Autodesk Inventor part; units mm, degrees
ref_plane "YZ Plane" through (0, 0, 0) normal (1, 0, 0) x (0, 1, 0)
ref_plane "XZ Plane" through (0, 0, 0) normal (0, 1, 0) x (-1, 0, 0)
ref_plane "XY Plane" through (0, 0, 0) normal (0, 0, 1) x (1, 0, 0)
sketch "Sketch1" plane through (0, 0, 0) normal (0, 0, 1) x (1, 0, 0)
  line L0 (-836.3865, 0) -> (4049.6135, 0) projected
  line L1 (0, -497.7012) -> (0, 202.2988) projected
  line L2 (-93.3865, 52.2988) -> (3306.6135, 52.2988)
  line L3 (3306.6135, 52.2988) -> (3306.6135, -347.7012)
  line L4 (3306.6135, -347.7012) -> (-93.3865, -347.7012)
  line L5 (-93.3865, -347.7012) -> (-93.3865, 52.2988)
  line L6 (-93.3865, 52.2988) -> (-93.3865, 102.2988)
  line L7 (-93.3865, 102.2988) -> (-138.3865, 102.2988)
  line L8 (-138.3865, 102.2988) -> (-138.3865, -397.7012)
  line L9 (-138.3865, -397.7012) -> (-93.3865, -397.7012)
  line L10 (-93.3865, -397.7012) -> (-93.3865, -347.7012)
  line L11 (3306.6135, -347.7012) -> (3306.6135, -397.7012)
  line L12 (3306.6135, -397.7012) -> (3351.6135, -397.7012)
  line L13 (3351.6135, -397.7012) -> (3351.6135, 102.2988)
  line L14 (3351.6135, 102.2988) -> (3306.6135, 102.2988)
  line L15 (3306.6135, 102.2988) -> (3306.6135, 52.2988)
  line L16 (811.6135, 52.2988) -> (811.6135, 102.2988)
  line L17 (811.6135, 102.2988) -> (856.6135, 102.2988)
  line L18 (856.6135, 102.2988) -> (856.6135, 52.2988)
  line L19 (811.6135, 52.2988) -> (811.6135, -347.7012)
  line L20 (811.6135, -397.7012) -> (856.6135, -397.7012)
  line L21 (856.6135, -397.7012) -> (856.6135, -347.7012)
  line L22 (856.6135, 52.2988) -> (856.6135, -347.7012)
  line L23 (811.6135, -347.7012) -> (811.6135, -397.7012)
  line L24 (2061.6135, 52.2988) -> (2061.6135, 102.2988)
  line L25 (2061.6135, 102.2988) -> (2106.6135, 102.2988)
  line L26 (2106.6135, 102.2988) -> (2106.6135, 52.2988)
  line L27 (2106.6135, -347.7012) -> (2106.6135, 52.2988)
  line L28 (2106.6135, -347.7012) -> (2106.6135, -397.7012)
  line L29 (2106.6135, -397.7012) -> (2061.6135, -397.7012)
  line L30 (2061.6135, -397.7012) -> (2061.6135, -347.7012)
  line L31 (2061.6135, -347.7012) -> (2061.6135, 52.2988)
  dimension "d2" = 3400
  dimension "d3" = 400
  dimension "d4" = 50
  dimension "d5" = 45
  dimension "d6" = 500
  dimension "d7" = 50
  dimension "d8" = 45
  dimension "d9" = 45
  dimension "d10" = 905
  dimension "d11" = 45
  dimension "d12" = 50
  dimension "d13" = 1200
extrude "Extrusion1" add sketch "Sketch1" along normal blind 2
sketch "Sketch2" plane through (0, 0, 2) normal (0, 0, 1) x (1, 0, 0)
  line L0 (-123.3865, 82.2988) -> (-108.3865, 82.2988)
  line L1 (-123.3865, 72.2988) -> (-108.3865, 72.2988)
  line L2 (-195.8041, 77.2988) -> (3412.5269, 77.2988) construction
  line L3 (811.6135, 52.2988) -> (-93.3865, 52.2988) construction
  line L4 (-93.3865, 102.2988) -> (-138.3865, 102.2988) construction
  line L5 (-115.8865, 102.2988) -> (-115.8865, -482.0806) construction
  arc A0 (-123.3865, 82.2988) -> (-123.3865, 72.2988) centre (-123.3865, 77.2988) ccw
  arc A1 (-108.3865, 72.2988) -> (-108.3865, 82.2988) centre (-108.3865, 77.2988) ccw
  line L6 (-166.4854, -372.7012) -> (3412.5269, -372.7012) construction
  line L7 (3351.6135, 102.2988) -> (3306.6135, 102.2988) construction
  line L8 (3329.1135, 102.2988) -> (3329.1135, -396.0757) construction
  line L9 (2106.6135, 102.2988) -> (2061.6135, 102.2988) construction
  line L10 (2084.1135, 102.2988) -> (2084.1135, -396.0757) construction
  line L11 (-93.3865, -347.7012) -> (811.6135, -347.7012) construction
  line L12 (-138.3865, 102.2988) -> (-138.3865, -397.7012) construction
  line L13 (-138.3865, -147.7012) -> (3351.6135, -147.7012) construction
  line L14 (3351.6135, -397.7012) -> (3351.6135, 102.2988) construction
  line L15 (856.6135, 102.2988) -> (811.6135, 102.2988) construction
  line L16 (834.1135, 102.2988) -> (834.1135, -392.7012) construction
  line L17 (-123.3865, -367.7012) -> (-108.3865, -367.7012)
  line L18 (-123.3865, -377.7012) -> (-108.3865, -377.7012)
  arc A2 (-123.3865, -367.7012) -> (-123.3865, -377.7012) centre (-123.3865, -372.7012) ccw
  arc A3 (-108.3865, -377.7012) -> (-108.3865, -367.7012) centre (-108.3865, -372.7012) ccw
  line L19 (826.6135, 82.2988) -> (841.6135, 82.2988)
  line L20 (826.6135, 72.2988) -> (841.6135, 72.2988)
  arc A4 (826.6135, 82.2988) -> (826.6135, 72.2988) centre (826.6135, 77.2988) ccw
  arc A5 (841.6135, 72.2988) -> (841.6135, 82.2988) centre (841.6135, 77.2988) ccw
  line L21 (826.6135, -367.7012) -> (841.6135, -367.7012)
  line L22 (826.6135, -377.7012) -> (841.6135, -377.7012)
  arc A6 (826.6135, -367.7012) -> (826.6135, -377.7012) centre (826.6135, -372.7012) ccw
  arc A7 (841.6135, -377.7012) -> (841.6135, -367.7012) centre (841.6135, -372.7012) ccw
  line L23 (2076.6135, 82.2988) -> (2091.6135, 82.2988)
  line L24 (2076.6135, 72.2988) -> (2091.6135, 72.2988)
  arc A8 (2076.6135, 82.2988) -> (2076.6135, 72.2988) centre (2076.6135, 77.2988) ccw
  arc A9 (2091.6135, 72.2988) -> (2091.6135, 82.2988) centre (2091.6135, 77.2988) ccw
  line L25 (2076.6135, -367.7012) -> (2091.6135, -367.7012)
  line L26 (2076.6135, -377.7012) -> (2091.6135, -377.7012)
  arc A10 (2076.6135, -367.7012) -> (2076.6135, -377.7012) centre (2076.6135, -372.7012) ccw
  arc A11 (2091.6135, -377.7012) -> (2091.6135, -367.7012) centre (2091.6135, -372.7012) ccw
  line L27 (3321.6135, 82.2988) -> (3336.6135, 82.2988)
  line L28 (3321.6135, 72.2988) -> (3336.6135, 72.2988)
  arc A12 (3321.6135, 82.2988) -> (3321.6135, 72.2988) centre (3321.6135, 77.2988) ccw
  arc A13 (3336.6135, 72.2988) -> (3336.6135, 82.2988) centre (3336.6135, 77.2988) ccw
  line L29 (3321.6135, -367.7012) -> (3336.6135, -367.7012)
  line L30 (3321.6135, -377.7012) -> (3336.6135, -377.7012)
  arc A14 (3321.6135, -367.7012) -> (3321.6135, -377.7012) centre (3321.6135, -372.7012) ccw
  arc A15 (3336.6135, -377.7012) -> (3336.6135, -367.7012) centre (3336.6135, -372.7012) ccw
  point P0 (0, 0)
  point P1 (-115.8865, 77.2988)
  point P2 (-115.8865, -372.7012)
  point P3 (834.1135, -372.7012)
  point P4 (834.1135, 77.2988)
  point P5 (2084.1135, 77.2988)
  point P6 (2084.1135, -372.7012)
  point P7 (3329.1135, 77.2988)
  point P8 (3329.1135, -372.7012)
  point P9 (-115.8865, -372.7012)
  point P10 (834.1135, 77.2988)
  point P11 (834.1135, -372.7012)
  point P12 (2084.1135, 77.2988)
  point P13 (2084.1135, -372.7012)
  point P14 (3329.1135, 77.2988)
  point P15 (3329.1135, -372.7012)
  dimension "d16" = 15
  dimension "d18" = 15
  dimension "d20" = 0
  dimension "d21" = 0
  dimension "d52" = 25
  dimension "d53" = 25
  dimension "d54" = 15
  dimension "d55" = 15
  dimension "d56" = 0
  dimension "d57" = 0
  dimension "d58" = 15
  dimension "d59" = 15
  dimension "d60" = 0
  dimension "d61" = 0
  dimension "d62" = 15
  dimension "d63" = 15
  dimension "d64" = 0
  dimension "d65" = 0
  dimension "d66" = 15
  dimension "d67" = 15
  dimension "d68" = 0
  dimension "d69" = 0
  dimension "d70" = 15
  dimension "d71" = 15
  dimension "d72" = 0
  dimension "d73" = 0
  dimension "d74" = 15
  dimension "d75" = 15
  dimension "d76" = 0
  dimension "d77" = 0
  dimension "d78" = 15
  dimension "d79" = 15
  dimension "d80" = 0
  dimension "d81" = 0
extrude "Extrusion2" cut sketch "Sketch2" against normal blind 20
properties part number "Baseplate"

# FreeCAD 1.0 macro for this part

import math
import FreeCAD as App
import Part
import Sketcher

V = App.Vector
Q = App.Units.Quantity


def add_polygon(sketch, points):
    """Adds a closed chain of lines whose ends are joined by coincident constraints."""
    first, n = sketch.GeometryCount, len(points)
    for a, b in zip(points, points[1:] + points[:1]):
        sketch.addGeometry(Part.LineSegment(App.Vector(*a, 0), App.Vector(*b, 0)), False)
    for i in range(n):
        sketch.addConstraint(Sketcher.Constraint("Coincident", first + i, 2, first + (i + 1) % n, 1))

doc = App.newDocument("Part")
body = doc.addObject("PartDesign::Body", "Body")

sketch1 = body.newObject("Sketcher::SketchObject", "Sketch")
sketch1.AttachmentSupport = (doc.getObject("XY_Plane"), [""])
sketch1.MapMode = "FlatFace"
add_polygon(sketch1, [(-138.3865, 102.2988), (-138.3865, -397.7012), (-93.3865, -397.7012), (-93.3865, -347.7012), (811.6135, -347.7012), (811.6135, -397.7012), (856.6135, -397.7012), (856.6135, -347.7012), (2061.6135, -347.7012), (2061.6135, -397.7012), (2106.6135, -397.7012), (2106.6135, -347.7012), (3306.6135, -347.7012), (3306.6135, -397.7012), (3351.6135, -397.7012), (3351.6135, 102.2988), (3306.6135, 102.2988), (3306.6135, 52.2988), (2106.6135, 52.2988), (2106.6135, 102.2988), (2061.6135, 102.2988), (2061.6135, 52.2988), (856.6135, 52.2988), (856.6135, 102.2988), (811.6135, 102.2988), (811.6135, 52.2988), (-93.3865, 52.2988), (-93.3865, 102.2988)])
sketch1.addConstraint(Sketcher.Constraint("Vertical", 0))
sketch1.addConstraint(Sketcher.Constraint("Horizontal", 1))
sketch1.addConstraint(Sketcher.Constraint("Vertical", 2))
sketch1.addConstraint(Sketcher.Constraint("Horizontal", 3))
sketch1.addConstraint(Sketcher.Constraint("Vertical", 4))
sketch1.addConstraint(Sketcher.Constraint("Horizontal", 5))
sketch1.addConstraint(Sketcher.Constraint("Vertical", 6))
sketch1.addConstraint(Sketcher.Constraint("Horizontal", 7))
sketch1.addConstraint(Sketcher.Constraint("Vertical", 8))
sketch1.addConstraint(Sketcher.Constraint("Horizontal", 9))
sketch1.addConstraint(Sketcher.Constraint("Vertical", 10))
sketch1.addConstraint(Sketcher.Constraint("Horizontal", 11))
sketch1.addConstraint(Sketcher.Constraint("Vertical", 12))
sketch1.addConstraint(Sketcher.Constraint("Horizontal", 13))
sketch1.addConstraint(Sketcher.Constraint("Vertical", 14))
sketch1.addConstraint(Sketcher.Constraint("Horizontal", 15))
sketch1.addConstraint(Sketcher.Constraint("Vertical", 16))
sketch1.addConstraint(Sketcher.Constraint("Horizontal", 17))
sketch1.addConstraint(Sketcher.Constraint("Vertical", 18))
sketch1.addConstraint(Sketcher.Constraint("Horizontal", 19))
sketch1.addConstraint(Sketcher.Constraint("Vertical", 20))
sketch1.addConstraint(Sketcher.Constraint("Horizontal", 21))
sketch1.addConstraint(Sketcher.Constraint("Vertical", 22))
sketch1.addConstraint(Sketcher.Constraint("Horizontal", 23))
sketch1.addConstraint(Sketcher.Constraint("Vertical", 24))
sketch1.addConstraint(Sketcher.Constraint("Horizontal", 25))
sketch1.addConstraint(Sketcher.Constraint("Vertical", 26))
sketch1.addConstraint(Sketcher.Constraint("Horizontal", 27))
sketch1.addConstraint(Sketcher.Constraint("Horizontal", 1, 2, 4, 2))
sketch1.addConstraint(Sketcher.Constraint("Horizontal", 3, 2, 6, 2))
sketch1.addConstraint(Sketcher.Constraint("Horizontal", 5, 2, 8, 2))
sketch1.addConstraint(Sketcher.Constraint("Horizontal", 7, 2, 10, 2))
sketch1.addConstraint(Sketcher.Constraint("Horizontal", 9, 2, 12, 2))
sketch1.addConstraint(Sketcher.Constraint("Horizontal", 15, 2, 18, 2))
sketch1.addConstraint(Sketcher.Constraint("Horizontal", 17, 2, 20, 2))
sketch1.addConstraint(Sketcher.Constraint("Horizontal", 19, 2, 22, 2))
sketch1.addConstraint(Sketcher.Constraint("Horizontal", 21, 2, 24, 2))
sketch1.addConstraint(Sketcher.Constraint("Horizontal", 23, 2, 26, 2))
sketch1.addConstraint(Sketcher.Constraint("Vertical", 12, 2, 15, 2))
sketch1.addConstraint(Sketcher.Constraint("Vertical", 10, 2, 17, 2))
sketch1.addConstraint(Sketcher.Constraint("Vertical", 8, 2, 19, 2))
sketch1.addConstraint(Sketcher.Constraint("Vertical", 6, 2, 21, 2))
sketch1.addConstraint(Sketcher.Constraint("Vertical", 4, 2, 23, 2))
sketch1.addConstraint(Sketcher.Constraint("Vertical", 2, 2, 25, 2))
sketch1.addConstraint(Sketcher.Constraint("Equal", 1, 5))
sketch1.addConstraint(Sketcher.Constraint("Equal", 5, 9))
sketch1.addConstraint(Sketcher.Constraint("Equal", 9, 13))
sketch1.addConstraint(Sketcher.Constraint("Equal", 12, 16))
sketch1.addConstraint(Sketcher.Constraint("DistanceX", 1, 1, 1, 2, Q("45 mm")))
sketch1.addConstraint(Sketcher.Constraint("DistanceX", 3, 1, 3, 2, Q("905 mm")))
sketch1.addConstraint(Sketcher.Constraint("DistanceX", 11, 1, 11, 2, Q("1200 mm")))
sketch1.addConstraint(Sketcher.Constraint("DistanceY", 0, 2, 0, 1, Q("500 mm")))
sketch1.addConstraint(Sketcher.Constraint("DistanceY", 2, 1, 2, 2, Q("50 mm")))
sketch1.addConstraint(Sketcher.Constraint("DistanceX", 7, 1, 7, 2, Q("1205 mm")))
sketch1.addConstraint(Sketcher.Constraint("DistanceX", 0, 2, -1, 1, Q("138.3865 mm")))
sketch1.addConstraint(Sketcher.Constraint("DistanceY", 0, 2, -1, 1, Q("397.7012 mm")))
pad1 = body.newObject("PartDesign::Pad", "Pad")
pad1.Profile = sketch1
pad1.Length = 2

sketch2 = body.newObject("Sketcher::SketchObject", "Sketch001")
sketch2.AttachmentSupport = (doc.getObject("XY_Plane"), [""])
sketch2.MapMode = "FlatFace"
sketch2.AttachmentOffset = App.Placement(V(0, 0, 2), App.Rotation())
sketch2.addGeometry(Part.LineSegment(V(-108.3865, 82.2988, 0), V(-123.3865, 82.2988, 0)), False)
sketch2.addGeometry(Part.ArcOfCircle(Part.Circle(V(-123.3865, 77.2988, 0), V(0, 0, 1), 5), math.radians(90), math.radians(270)), False)
sketch2.addGeometry(Part.LineSegment(V(-123.3865, 72.2988, 0), V(-108.3865, 72.2988, 0)), False)
sketch2.addGeometry(Part.ArcOfCircle(Part.Circle(V(-108.3865, 77.2988, 0), V(0, 0, 1), 5), math.radians(-90), math.radians(90)), False)
sketch2.addGeometry(Part.LineSegment(V(-108.3865, -367.7012, 0), V(-123.3865, -367.7012, 0)), False)
sketch2.addGeometry(Part.ArcOfCircle(Part.Circle(V(-123.3865, -372.7012, 0), V(0, 0, 1), 5), math.radians(90), math.radians(270)), False)
sketch2.addGeometry(Part.LineSegment(V(-123.3865, -377.7012, 0), V(-108.3865, -377.7012, 0)), False)
sketch2.addGeometry(Part.ArcOfCircle(Part.Circle(V(-108.3865, -372.7012, 0), V(0, 0, 1), 5), math.radians(-90), math.radians(90)), False)
sketch2.addGeometry(Part.LineSegment(V(841.6135, 82.2988, 0), V(826.6135, 82.2988, 0)), False)
sketch2.addGeometry(Part.ArcOfCircle(Part.Circle(V(826.6135, 77.2988, 0), V(0, 0, 1), 5), math.radians(90), math.radians(270)), False)
sketch2.addGeometry(Part.LineSegment(V(826.6135, 72.2988, 0), V(841.6135, 72.2988, 0)), False)
sketch2.addGeometry(Part.ArcOfCircle(Part.Circle(V(841.6135, 77.2988, 0), V(0, 0, 1), 5), math.radians(-90), math.radians(90)), False)
sketch2.addGeometry(Part.LineSegment(V(841.6135, -367.7012, 0), V(826.6135, -367.7012, 0)), False)
sketch2.addGeometry(Part.ArcOfCircle(Part.Circle(V(826.6135, -372.7012, 0), V(0, 0, 1), 5), math.radians(90), math.radians(270)), False)
sketch2.addGeometry(Part.LineSegment(V(826.6135, -377.7012, 0), V(841.6135, -377.7012, 0)), False)
sketch2.addGeometry(Part.ArcOfCircle(Part.Circle(V(841.6135, -372.7012, 0), V(0, 0, 1), 5), math.radians(-90), math.radians(90)), False)
sketch2.addGeometry(Part.LineSegment(V(2091.6135, 82.2988, 0), V(2076.6135, 82.2988, 0)), False)
sketch2.addGeometry(Part.ArcOfCircle(Part.Circle(V(2076.6135, 77.2988, 0), V(0, 0, 1), 5), math.radians(90), math.radians(270)), False)
sketch2.addGeometry(Part.LineSegment(V(2076.6135, 72.2988, 0), V(2091.6135, 72.2988, 0)), False)
sketch2.addGeometry(Part.ArcOfCircle(Part.Circle(V(2091.6135, 77.2988, 0), V(0, 0, 1), 5), math.radians(-90), math.radians(90)), False)
sketch2.addGeometry(Part.LineSegment(V(2091.6135, -367.7012, 0), V(2076.6135, -367.7012, 0)), False)
sketch2.addGeometry(Part.ArcOfCircle(Part.Circle(V(2076.6135, -372.7012, 0), V(0, 0, 1), 5), math.radians(90), math.radians(270)), False)
sketch2.addGeometry(Part.LineSegment(V(2076.6135, -377.7012, 0), V(2091.6135, -377.7012, 0)), False)
sketch2.addGeometry(Part.ArcOfCircle(Part.Circle(V(2091.6135, -372.7012, 0), V(0, 0, 1), 5), math.radians(-90), math.radians(90)), False)
sketch2.addGeometry(Part.LineSegment(V(3336.6135, 82.2988, 0), V(3321.6135, 82.2988, 0)), False)
sketch2.addGeometry(Part.ArcOfCircle(Part.Circle(V(3321.6135, 77.2988, 0), V(0, 0, 1), 5), math.radians(90), math.radians(270)), False)
sketch2.addGeometry(Part.LineSegment(V(3321.6135, 72.2988, 0), V(3336.6135, 72.2988, 0)), False)
sketch2.addGeometry(Part.ArcOfCircle(Part.Circle(V(3336.6135, 77.2988, 0), V(0, 0, 1), 5), math.radians(-90), math.radians(90)), False)
sketch2.addGeometry(Part.LineSegment(V(3336.6135, -367.7012, 0), V(3321.6135, -367.7012, 0)), False)
sketch2.addGeometry(Part.ArcOfCircle(Part.Circle(V(3321.6135, -372.7012, 0), V(0, 0, 1), 5), math.radians(90), math.radians(270)), False)
sketch2.addGeometry(Part.LineSegment(V(3321.6135, -377.7012, 0), V(3336.6135, -377.7012, 0)), False)
sketch2.addGeometry(Part.ArcOfCircle(Part.Circle(V(3336.6135, -372.7012, 0), V(0, 0, 1), 5), math.radians(-90), math.radians(90)), False)
sketch2.addConstraint(Sketcher.Constraint("Tangent", 0, 2, 1, 1))
sketch2.addConstraint(Sketcher.Constraint("Tangent", 1, 2, 2, 1))
sketch2.addConstraint(Sketcher.Constraint("Tangent", 2, 2, 3, 1))
sketch2.addConstraint(Sketcher.Constraint("Tangent", 3, 2, 0, 1))
sketch2.addConstraint(Sketcher.Constraint("Tangent", 4, 2, 5, 1))
sketch2.addConstraint(Sketcher.Constraint("Tangent", 5, 2, 6, 1))
sketch2.addConstraint(Sketcher.Constraint("Tangent", 6, 2, 7, 1))
sketch2.addConstraint(Sketcher.Constraint("Tangent", 7, 2, 4, 1))
sketch2.addConstraint(Sketcher.Constraint("Tangent", 8, 2, 9, 1))
sketch2.addConstraint(Sketcher.Constraint("Tangent", 9, 2, 10, 1))
sketch2.addConstraint(Sketcher.Constraint("Tangent", 10, 2, 11, 1))
sketch2.addConstraint(Sketcher.Constraint("Tangent", 11, 2, 8, 1))
sketch2.addConstraint(Sketcher.Constraint("Tangent", 12, 2, 13, 1))
sketch2.addConstraint(Sketcher.Constraint("Tangent", 13, 2, 14, 1))
sketch2.addConstraint(Sketcher.Constraint("Tangent", 14, 2, 15, 1))
sketch2.addConstraint(Sketcher.Constraint("Tangent", 15, 2, 12, 1))
sketch2.addConstraint(Sketcher.Constraint("Tangent", 16, 2, 17, 1))
sketch2.addConstraint(Sketcher.Constraint("Tangent", 17, 2, 18, 1))
sketch2.addConstraint(Sketcher.Constraint("Tangent", 18, 2, 19, 1))
sketch2.addConstraint(Sketcher.Constraint("Tangent", 19, 2, 16, 1))
sketch2.addConstraint(Sketcher.Constraint("Tangent", 20, 2, 21, 1))
sketch2.addConstraint(Sketcher.Constraint("Tangent", 21, 2, 22, 1))
sketch2.addConstraint(Sketcher.Constraint("Tangent", 22, 2, 23, 1))
sketch2.addConstraint(Sketcher.Constraint("Tangent", 23, 2, 20, 1))
sketch2.addConstraint(Sketcher.Constraint("Tangent", 24, 2, 25, 1))
sketch2.addConstraint(Sketcher.Constraint("Tangent", 25, 2, 26, 1))
sketch2.addConstraint(Sketcher.Constraint("Tangent", 26, 2, 27, 1))
sketch2.addConstraint(Sketcher.Constraint("Tangent", 27, 2, 24, 1))
sketch2.addConstraint(Sketcher.Constraint("Tangent", 28, 2, 29, 1))
sketch2.addConstraint(Sketcher.Constraint("Tangent", 29, 2, 30, 1))
sketch2.addConstraint(Sketcher.Constraint("Tangent", 30, 2, 31, 1))
sketch2.addConstraint(Sketcher.Constraint("Tangent", 31, 2, 28, 1))
sketch2.addConstraint(Sketcher.Constraint("Horizontal", 0))
sketch2.addConstraint(Sketcher.Constraint("Horizontal", 2))
sketch2.addConstraint(Sketcher.Constraint("Horizontal", 4))
sketch2.addConstraint(Sketcher.Constraint("Horizontal", 6))
sketch2.addConstraint(Sketcher.Constraint("Horizontal", 8))
sketch2.addConstraint(Sketcher.Constraint("Horizontal", 10))
sketch2.addConstraint(Sketcher.Constraint("Horizontal", 12))
sketch2.addConstraint(Sketcher.Constraint("Horizontal", 14))
sketch2.addConstraint(Sketcher.Constraint("Horizontal", 16))
sketch2.addConstraint(Sketcher.Constraint("Horizontal", 18))
sketch2.addConstraint(Sketcher.Constraint("Horizontal", 20))
sketch2.addConstraint(Sketcher.Constraint("Horizontal", 22))
sketch2.addConstraint(Sketcher.Constraint("Horizontal", 24))
sketch2.addConstraint(Sketcher.Constraint("Horizontal", 26))
sketch2.addConstraint(Sketcher.Constraint("Horizontal", 28))
sketch2.addConstraint(Sketcher.Constraint("Horizontal", 30))
sketch2.addConstraint(Sketcher.Constraint("Equal", 3, 5))
sketch2.addConstraint(Sketcher.Constraint("Equal", 7, 9))
sketch2.addConstraint(Sketcher.Constraint("Equal", 11, 13))
sketch2.addConstraint(Sketcher.Constraint("Equal", 15, 17))
sketch2.addConstraint(Sketcher.Constraint("Equal", 19, 21))
sketch2.addConstraint(Sketcher.Constraint("Equal", 23, 25))
sketch2.addConstraint(Sketcher.Constraint("Equal", 27, 29))
sketch2.addConstraint(Sketcher.Constraint("Horizontal", 3, 3, 9, 3))
sketch2.addConstraint(Sketcher.Constraint("Horizontal", 7, 3, 13, 3))
sketch2.addConstraint(Sketcher.Constraint("Horizontal", 11, 3, 17, 3))
sketch2.addConstraint(Sketcher.Constraint("Horizontal", 15, 3, 21, 3))
sketch2.addConstraint(Sketcher.Constraint("Horizontal", 19, 3, 25, 3))
sketch2.addConstraint(Sketcher.Constraint("Horizontal", 23, 3, 29, 3))
sketch2.addConstraint(Sketcher.Constraint("Vertical", 1, 3, 5, 3))
sketch2.addConstraint(Sketcher.Constraint("Vertical", 3, 3, 7, 3))
sketch2.addConstraint(Sketcher.Constraint("Vertical", 9, 3, 13, 3))
sketch2.addConstraint(Sketcher.Constraint("Vertical", 11, 3, 15, 3))
sketch2.addConstraint(Sketcher.Constraint("Vertical", 17, 3, 21, 3))
sketch2.addConstraint(Sketcher.Constraint("Vertical", 19, 3, 23, 3))
sketch2.addConstraint(Sketcher.Constraint("Vertical", 25, 3, 29, 3))
sketch2.addConstraint(Sketcher.Constraint("Vertical", 27, 3, 31, 3))
sketch2.addConstraint(Sketcher.Constraint("Equal", 6, 8))
sketch2.addConstraint(Sketcher.Constraint("Equal", 14, 16))
sketch2.addConstraint(Sketcher.Constraint("Equal", 22, 24))
sketch2.addConstraint(Sketcher.Constraint("DistanceX", 0, 2, 0, 1, Q("15 mm")))
sketch2.addConstraint(Sketcher.Constraint("Radius", 1, Q("5 mm")))
sketch2.addConstraint(Sketcher.Constraint("DistanceY", 5, 3, 1, 3, Q("450 mm")))
sketch2.addConstraint(Sketcher.Constraint("DistanceX", 3, 3, 9, 3, Q("935 mm")))
sketch2.addConstraint(Sketcher.Constraint("DistanceX", 11, 3, 17, 3, Q("1235 mm")))
sketch2.addConstraint(Sketcher.Constraint("DistanceX", 19, 3, 25, 3, Q("1230 mm")))
sketch2.addConstraint(Sketcher.Constraint("DistanceX", 1, 3, -1, 1, Q("123.3865 mm")))
sketch2.addConstraint(Sketcher.Constraint("DistanceY", -1, 1, 1, 3, Q("77.2988 mm")))
pocket1 = body.newObject("PartDesign::Pocket", "Pocket")
pocket1.Profile = sketch2
pocket1.Length = 20

doc.recompute()
